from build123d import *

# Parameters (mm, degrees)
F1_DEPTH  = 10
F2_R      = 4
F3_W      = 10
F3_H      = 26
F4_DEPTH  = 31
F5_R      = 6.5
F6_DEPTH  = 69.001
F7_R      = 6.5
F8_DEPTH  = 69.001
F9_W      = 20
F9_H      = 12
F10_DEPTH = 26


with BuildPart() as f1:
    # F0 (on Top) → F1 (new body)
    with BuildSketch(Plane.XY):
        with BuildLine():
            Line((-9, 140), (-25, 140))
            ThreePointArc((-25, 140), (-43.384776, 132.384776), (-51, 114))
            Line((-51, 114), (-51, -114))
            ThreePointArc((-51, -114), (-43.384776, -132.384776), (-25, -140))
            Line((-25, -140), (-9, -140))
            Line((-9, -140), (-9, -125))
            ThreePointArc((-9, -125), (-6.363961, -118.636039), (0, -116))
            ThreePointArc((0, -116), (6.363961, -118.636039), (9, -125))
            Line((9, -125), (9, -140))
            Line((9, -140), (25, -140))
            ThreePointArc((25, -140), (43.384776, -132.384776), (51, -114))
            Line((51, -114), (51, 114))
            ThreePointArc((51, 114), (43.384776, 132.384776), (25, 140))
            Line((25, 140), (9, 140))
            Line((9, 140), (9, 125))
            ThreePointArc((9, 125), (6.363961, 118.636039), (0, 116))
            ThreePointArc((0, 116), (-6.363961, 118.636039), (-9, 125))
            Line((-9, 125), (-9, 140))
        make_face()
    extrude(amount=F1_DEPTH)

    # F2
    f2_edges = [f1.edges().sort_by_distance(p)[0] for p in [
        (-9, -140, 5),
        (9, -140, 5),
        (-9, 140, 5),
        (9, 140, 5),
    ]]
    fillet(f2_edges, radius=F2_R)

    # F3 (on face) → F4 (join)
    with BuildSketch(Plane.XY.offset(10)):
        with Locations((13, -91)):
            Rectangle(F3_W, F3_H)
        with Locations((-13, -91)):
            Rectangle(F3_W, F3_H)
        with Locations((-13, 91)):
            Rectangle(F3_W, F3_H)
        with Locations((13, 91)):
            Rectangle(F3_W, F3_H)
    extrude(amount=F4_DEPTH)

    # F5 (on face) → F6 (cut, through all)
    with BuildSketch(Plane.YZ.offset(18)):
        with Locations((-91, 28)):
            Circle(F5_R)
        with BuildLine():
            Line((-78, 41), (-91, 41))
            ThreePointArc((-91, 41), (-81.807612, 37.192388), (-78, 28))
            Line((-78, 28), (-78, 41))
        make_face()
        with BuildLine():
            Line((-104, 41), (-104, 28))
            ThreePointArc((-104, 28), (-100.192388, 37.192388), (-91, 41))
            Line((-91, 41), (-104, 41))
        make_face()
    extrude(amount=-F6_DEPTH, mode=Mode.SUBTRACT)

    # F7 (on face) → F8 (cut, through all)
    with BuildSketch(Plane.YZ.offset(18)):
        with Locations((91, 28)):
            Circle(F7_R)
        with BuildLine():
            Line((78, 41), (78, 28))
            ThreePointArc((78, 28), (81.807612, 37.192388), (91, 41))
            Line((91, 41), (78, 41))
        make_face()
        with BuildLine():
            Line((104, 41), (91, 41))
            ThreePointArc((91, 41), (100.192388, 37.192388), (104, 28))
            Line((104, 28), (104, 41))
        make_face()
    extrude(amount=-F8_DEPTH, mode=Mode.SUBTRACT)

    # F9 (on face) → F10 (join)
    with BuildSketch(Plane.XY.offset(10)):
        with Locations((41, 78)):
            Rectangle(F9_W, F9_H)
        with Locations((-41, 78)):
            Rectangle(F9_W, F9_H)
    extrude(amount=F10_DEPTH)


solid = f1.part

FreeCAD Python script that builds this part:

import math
import FreeCAD as App
import Part
import Sketcher
from FreeCAD import Vector
Q = App.Units.Quantity


def edges_at(feature, points):
    """Names of the edges that pass closest to the given points."""
    edges = feature.Shape.Edges
    near = lambda p: min(range(len(edges)), key=lambda i: edges[i].distToShape(Part.Vertex(*p))[0])
    return sorted({f"Edge{near(p) + 1}" for p in points})

doc = App.newDocument("Part")
body = doc.addObject("PartDesign::Body", "Body")

# Sketch on XY plane
sketch1 = body.newObject("Sketcher::SketchObject", "Sketch")
sketch1.AttachmentSupport = (doc.getObject("XY_Plane"), [""])
sketch1.MapMode = "FlatFace"
sketch1.addGeometry([
    Part.LineSegment(Vector(-9, 140, 0), Vector(-25, 140, 0)),  # 0
    Part.ArcOfCircle(Part.Circle(Vector(-25, 114, 0), Vector(0, 0, 1), 26), math.radians(90), math.radians(180)),  # 1
    Part.LineSegment(Vector(-51, 114, 0), Vector(-51, -114, 0)),  # 2
    Part.ArcOfCircle(Part.Circle(Vector(-25, -114, 0), Vector(0, 0, 1), 26), math.radians(-180), math.radians(-90)),  # 3
    Part.LineSegment(Vector(-25, -140, 0), Vector(-9, -140, 0)),  # 4
    Part.LineSegment(Vector(-9, -140, 0), Vector(-9, -125, 0)),  # 5
    Part.ArcOfCircle(Part.Circle(Vector(0, -125, 0), Vector(0, 0, 1), 9), math.radians(90), math.radians(180)),  # 6
    Part.ArcOfCircle(Part.Circle(Vector(0, -125, 0), Vector(0, 0, 1), 9), math.radians(0), math.radians(90)),  # 7
    Part.LineSegment(Vector(9, -125, 0), Vector(9, -140, 0)),  # 8
    Part.LineSegment(Vector(9, -140, 0), Vector(25, -140, 0)),  # 9
    Part.ArcOfCircle(Part.Circle(Vector(25, -114, 0), Vector(0, 0, 1), 26), math.radians(-90), math.radians(0)),  # 10
    Part.LineSegment(Vector(51, -114, 0), Vector(51, 114, 0)),  # 11
    Part.ArcOfCircle(Part.Circle(Vector(25, 114, 0), Vector(0, 0, 1), 26), math.radians(0), math.radians(90)),  # 12
    Part.LineSegment(Vector(25, 140, 0), Vector(9, 140, 0)),  # 13
    Part.LineSegment(Vector(9, 140, 0), Vector(9, 125, 0)),  # 14
    Part.ArcOfCircle(Part.Circle(Vector(0, 125, 0), Vector(0, 0, 1), 9), math.radians(-90), math.radians(0)),  # 15
    Part.ArcOfCircle(Part.Circle(Vector(0, 125, 0), Vector(0, 0, 1), 9), math.radians(-180), math.radians(-90)),  # 16
    Part.LineSegment(Vector(-9, 125, 0), Vector(-9, 140, 0)),  # 17
], False)
sketch1.addConstraint([
    Sketcher.Constraint("Tangent", 0, 2, 1, 1),
    Sketcher.Constraint("Tangent", 1, 2, 2, 1),
    Sketcher.Constraint("Tangent", 2, 2, 3, 1),
    Sketcher.Constraint("Tangent", 3, 2, 4, 1),
    Sketcher.Constraint("Coincident", 4, 2, 5, 1),
    Sketcher.Constraint("Tangent", 5, 2, 6, 2),
    Sketcher.Constraint("Tangent", 6, 1, 7, 2),
    Sketcher.Constraint("Tangent", 7, 1, 8, 1),
    Sketcher.Constraint("Coincident", 8, 2, 9, 1),
    Sketcher.Constraint("Tangent", 9, 2, 10, 1),
    Sketcher.Constraint("Tangent", 10, 2, 11, 1),
    Sketcher.Constraint("Tangent", 11, 2, 12, 1),
    Sketcher.Constraint("Tangent", 12, 2, 13, 1),
    Sketcher.Constraint("Coincident", 13, 2, 14, 1),
    Sketcher.Constraint("Tangent", 14, 2, 15, 2),
    Sketcher.Constraint("Tangent", 15, 1, 16, 2),
    Sketcher.Constraint("Tangent", 16, 1, 17, 1),
    Sketcher.Constraint("Coincident", 17, 2, 0, 1),
    Sketcher.Constraint("Horizontal", 0),
    Sketcher.Constraint("Vertical", 2),
    Sketcher.Constraint("Horizontal", 4),
    Sketcher.Constraint("Vertical", 5),
    Sketcher.Constraint("Vertical", 8),
    Sketcher.Constraint("Horizontal", 9),
    Sketcher.Constraint("Vertical", 11),
    Sketcher.Constraint("Horizontal", 13),
    Sketcher.Constraint("Vertical", 14),
    Sketcher.Constraint("Vertical", 17),
    Sketcher.Constraint("Equal", 1, 3),
    Sketcher.Constraint("Equal", 6, 7),
    Sketcher.Constraint("Equal", 3, 10),
    Sketcher.Constraint("Equal", 10, 12),
    Sketcher.Constraint("Equal", 7, 15),
    Sketcher.Constraint("Equal", 15, 16),
    Sketcher.Constraint("Symmetric", 1, 3, 10, 3, -1, 1),
    Sketcher.Constraint("Symmetric", 6, 3, 15, 3, -1, 1),
    Sketcher.Constraint("Symmetric", 4, 2, 8, 2, -2),
    Sketcher.Constraint("PointOnObject", 6, 1, -2),
    Sketcher.Constraint("PointOnObject", 15, 1, -2),
    Sketcher.Constraint("Horizontal", 1, 3, 12, 3),
    Sketcher.Constraint("Radius", 1, Q("26.000001 mm")),
    Sketcher.Constraint("Radius", 6, Q("9 mm")),
    Sketcher.Constraint("DistanceX", 0, 2, 0, 1, Q("16 mm")),
    Sketcher.Constraint("DistanceY", 2, 2, 2, 1, Q("228 mm")),
    Sketcher.Constraint("DistanceY", 5, 1, 5, 2, Q("15 mm")),
])
pad1 = body.newObject("PartDesign::Pad", "Pad")
pad1.Profile = sketch1
pad1.Length = 10
doc.recompute()

fillet = body.newObject("PartDesign::Fillet", "Fillet")
fillet.Base = (pad1, edges_at(pad1, [
    (-9, -140, 5),
    (9, -140, 5),
    (-9, 140, 5),
    (9, 140, 5),
]))
fillet.Radius = 4

# Sketch on XY plane
sketch2 = body.newObject("Sketcher::SketchObject", "Sketch001")
sketch2.AttachmentSupport = (doc.getObject("XY_Plane"), [""])
sketch2.MapMode = "FlatFace"
sketch2.AttachmentOffset = App.Placement(Vector(0, 0, 10), App.Rotation())
sketch2.addGeometry([
    Part.LineSegment(Vector(8, -78, 0), Vector(8, -104, 0)),  # 0
    Part.LineSegment(Vector(8, -104, 0), Vector(18, -104, 0)),  # 1
    Part.LineSegment(Vector(18, -104, 0), Vector(18, -78, 0)),  # 2
    Part.LineSegment(Vector(18, -78, 0), Vector(8, -78, 0)),  # 3
    Part.LineSegment(Vector(-18, -78, 0), Vector(-18, -104, 0)),  # 4
    Part.LineSegment(Vector(-18, -104, 0), Vector(-8, -104, 0)),  # 5
    Part.LineSegment(Vector(-8, -104, 0), Vector(-8, -78, 0)),  # 6
    Part.LineSegment(Vector(-8, -78, 0), Vector(-18, -78, 0)),  # 7
    Part.LineSegment(Vector(-18, 104, 0), Vector(-18, 78, 0)),  # 8
    Part.LineSegment(Vector(-18, 78, 0), Vector(-8, 78, 0)),  # 9
    Part.LineSegment(Vector(-8, 78, 0), Vector(-8, 104, 0)),  # 10
    Part.LineSegment(Vector(-8, 104, 0), Vector(-18, 104, 0)),  # 11
    Part.LineSegment(Vector(8, 104, 0), Vector(8, 78, 0)),  # 12
    Part.LineSegment(Vector(8, 78, 0), Vector(18, 78, 0)),  # 13
    Part.LineSegment(Vector(18, 78, 0), Vector(18, 104, 0)),  # 14
    Part.LineSegment(Vector(18, 104, 0), Vector(8, 104, 0)),  # 15
], False)
sketch2.addConstraint([
    Sketcher.Constraint("Coincident", 0, 2, 1, 1),
    Sketcher.Constraint("Coincident", 1, 2, 2, 1),
    Sketcher.Constraint("Coincident", 2, 2, 3, 1),
    Sketcher.Constraint("Coincident", 3, 2, 0, 1),
    Sketcher.Constraint("Coincident", 4, 2, 5, 1),
    Sketcher.Constraint("Coincident", 5, 2, 6, 1),
    Sketcher.Constraint("Coincident", 6, 2, 7, 1),
    Sketcher.Constraint("Coincident", 7, 2, 4, 1),
    Sketcher.Constraint("Coincident", 8, 2, 9, 1),
    Sketcher.Constraint("Coincident", 9, 2, 10, 1),
    Sketcher.Constraint("Coincident", 10, 2, 11, 1),
    Sketcher.Constraint("Coincident", 11, 2, 8, 1),
    Sketcher.Constraint("Coincident", 12, 2, 13, 1),
    Sketcher.Constraint("Coincident", 13, 2, 14, 1),
    Sketcher.Constraint("Coincident", 14, 2, 15, 1),
    Sketcher.Constraint("Coincident", 15, 2, 12, 1),
    Sketcher.Constraint("Vertical", 0),
    Sketcher.Constraint("Horizontal", 1),
    Sketcher.Constraint("Vertical", 2),
    Sketcher.Constraint("Horizontal", 3),
    Sketcher.Constraint("Vertical", 4),
    Sketcher.Constraint("Horizontal", 5),
    Sketcher.Constraint("Vertical", 6),
    Sketcher.Constraint("Horizontal", 7),
    Sketcher.Constraint("Vertical", 8),
    Sketcher.Constraint("Horizontal", 9),
    Sketcher.Constraint("Vertical", 10),
    Sketcher.Constraint("Horizontal", 11),
    Sketcher.Constraint("Vertical", 12),
    Sketcher.Constraint("Horizontal", 13),
    Sketcher.Constraint("Vertical", 14),
    Sketcher.Constraint("Horizontal", 15),
    Sketcher.Constraint("Symmetric", 2, 2, 8, 2, -1, 1),
    Sketcher.Constraint("Symmetric", 0, 2, 10, 2, -1, 1),
    Sketcher.Constraint("Symmetric", 6, 2, 12, 2, -1, 1),
    Sketcher.Constraint("Symmetric", 4, 2, 14, 2, -1, 1),
    Sketcher.Constraint("Symmetric", 1, 2, 4, 2, -2),
    Sketcher.Constraint("Symmetric", 3, 2, 6, 2, -2),
    Sketcher.Constraint("DistanceX", 1, 1, 1, 2, Q("10 mm")),
    Sketcher.Constraint("DistanceY", 0, 2, 0, 1, Q("26 mm")),
    Sketcher.Constraint("DistanceX", -1, 1, 0, 2, Q("8 mm")),
    Sketcher.Constraint("DistanceY", 0, 2, -1, 1, Q("104 mm")),
])
pad2 = body.newObject("PartDesign::Pad", "Pad001")
pad2.Profile = sketch2
pad2.Length = 31

# Sketch on YZ plane
sketch3 = body.newObject("Sketcher::SketchObject", "Sketch002")
sketch3.AttachmentSupport = (doc.getObject("YZ_Plane"), [""])
sketch3.MapMode = "FlatFace"
sketch3.AttachmentOffset = App.Placement(Vector(0, 0, 18), App.Rotation())
sketch3.addGeometry([
    Part.Circle(Vector(-91, 28, 0), Vector(0, 0, 1), 6),  # 0
    Part.LineSegment(Vector(-78, 41, 0), Vector(-91, 41, 0)),  # 1
    Part.ArcOfCircle(Part.Circle(Vector(-91, 28, 0), Vector(0, 0, 1), 13), math.radians(0), math.radians(90)),  # 2
    Part.LineSegment(Vector(-78, 28, 0), Vector(-78, 41, 0)),  # 3
    Part.LineSegment(Vector(-104, 41, 0), Vector(-104, 28, 0)),  # 4
    Part.ArcOfCircle(Part.Circle(Vector(-91, 28, 0), Vector(0, 0, 1), 13), math.radians(90), math.radians(180)),  # 5
    Part.LineSegment(Vector(-91, 41, 0), Vector(-104, 41, 0)),  # 6
], False)
sketch3.addConstraint([
    Sketcher.Constraint("Tangent", 1, 2, 2, 2),
    Sketcher.Constraint("Tangent", 2, 1, 3, 1),
    Sketcher.Constraint("Coincident", 3, 2, 1, 1),
    Sketcher.Constraint("Tangent", 4, 2, 5, 2),
    Sketcher.Constraint("Tangent", 5, 1, 6, 1),
    Sketcher.Constraint("Coincident", 6, 2, 4, 1),
    Sketcher.Constraint("Horizontal", 1),
    Sketcher.Constraint("Vertical", 3),
    Sketcher.Constraint("Vertical", 4),
    Sketcher.Constraint("Horizontal", 6),
    Sketcher.Constraint("Coincident", 2, 3, 0, 3),
    Sketcher.Constraint("Coincident", 5, 3, 0, 3),
    Sketcher.Constraint("Equal", 2, 5),
    Sketcher.Constraint("Diameter", 0, Q("13 mm")),
    Sketcher.Constraint("Radius", 2, Q("13.000001 mm")),
    Sketcher.Constraint("DistanceX", 0, 3, -1, 1, Q("91 mm")),
    Sketcher.Constraint("DistanceY", -1, 1, 0, 3, Q("28 mm")),
])
pocket1 = body.newObject("PartDesign::Pocket", "Pocket")
pocket1.Profile = sketch3
pocket1.Type = "ThroughAll"

# Sketch on YZ plane
sketch4 = body.newObject("Sketcher::SketchObject", "Sketch003")
sketch4.AttachmentSupport = (doc.getObject("YZ_Plane"), [""])
sketch4.MapMode = "FlatFace"
sketch4.AttachmentOffset = App.Placement(Vector(0, 0, 18), App.Rotation())
sketch4.addGeometry([
    Part.Circle(Vector(91, 28, 0), Vector(0, 0, 1), 6),  # 0
    Part.LineSegment(Vector(78, 41, 0), Vector(78, 28, 0)),  # 1
    Part.ArcOfCircle(Part.Circle(Vector(91, 28, 0), Vector(0, 0, 1), 13), math.radians(90), math.radians(180)),  # 2
    Part.LineSegment(Vector(91, 41, 0), Vector(78, 41, 0)),  # 3
    Part.LineSegment(Vector(104, 41, 0), Vector(91, 41, 0)),  # 4
    Part.ArcOfCircle(Part.Circle(Vector(91, 28, 0), Vector(0, 0, 1), 13), math.radians(0), math.radians(90)),  # 5
    Part.LineSegment(Vector(104, 28, 0), Vector(104, 41, 0)),  # 6
], False)
sketch4.addConstraint([
    Sketcher.Constraint("Tangent", 1, 2, 2, 2),
    Sketcher.Constraint("Tangent", 2, 1, 3, 1),
    Sketcher.Constraint("Coincident", 3, 2, 1, 1),
    Sketcher.Constraint("Tangent", 4, 2, 5, 2),
    Sketcher.Constraint("Tangent", 5, 1, 6, 1),
    Sketcher.Constraint("Coincident", 6, 2, 4, 1),
    Sketcher.Constraint("Vertical", 1),
    Sketcher.Constraint("Horizontal", 3),
    Sketcher.Constraint("Horizontal", 4),
    Sketcher.Constraint("Vertical", 6),
    Sketcher.Constraint("Coincident", 2, 3, 0, 3),
    Sketcher.Constraint("Coincident", 5, 3, 0, 3),
    Sketcher.Constraint("Equal", 2, 5),
    Sketcher.Constraint("Diameter", 0, Q("13 mm")),
    Sketcher.Constraint("Radius", 2, Q("13.000001 mm")),
    Sketcher.Constraint("DistanceX", -1, 1, 0, 3, Q("91 mm")),
    Sketcher.Constraint("DistanceY", -1, 1, 0, 3, Q("28 mm")),
])
pocket2 = body.newObject("PartDesign::Pocket", "Pocket001")
pocket2.Profile = sketch4
pocket2.Type = "ThroughAll"

# Sketch on XY plane
sketch5 = body.newObject("Sketcher::SketchObject", "Sketch004")
sketch5.AttachmentSupport = (doc.getObject("XY_Plane"), [""])
sketch5.MapMode = "FlatFace"
sketch5.AttachmentOffset = App.Placement(Vector(0, 0, 10), App.Rotation())
sketch5.addGeometry([
    Part.LineSegment(Vector(31, 84, 0), Vector(31, 72, 0)),  # 0
    Part.LineSegment(Vector(31, 72, 0), Vector(51, 72, 0)),  # 1
    Part.LineSegment(Vector(51, 72, 0), Vector(51, 84, 0)),  # 2
    Part.LineSegment(Vector(51, 84, 0), Vector(31, 84, 0)),  # 3
    Part.LineSegment(Vector(-51, 84, 0), Vector(-51, 72, 0)),  # 4
    Part.LineSegment(Vector(-51, 72, 0), Vector(-31, 72, 0)),  # 5
    Part.LineSegment(Vector(-31, 72, 0), Vector(-31, 84, 0)),  # 6
    Part.LineSegment(Vector(-31, 84, 0), Vector(-51, 84, 0)),  # 7
], False)
sketch5.addConstraint([
    Sketcher.Constraint("Coincident", 0, 2, 1, 1),
    Sketcher.Constraint("Coincident", 1, 2, 2, 1),
    Sketcher.Constraint("Coincident", 2, 2, 3, 1),
    Sketcher.Constraint("Coincident", 3, 2, 0, 1),
    Sketcher.Constraint("Coincident", 4, 2, 5, 1),
    Sketcher.Constraint("Coincident", 5, 2, 6, 1),
    Sketcher.Constraint("Coincident", 6, 2, 7, 1),
    Sketcher.Constraint("Coincident", 7, 2, 4, 1),
    Sketcher.Constraint("Vertical", 0),
    Sketcher.Constraint("Horizontal", 1),
    Sketcher.Constraint("Vertical", 2),
    Sketcher.Constraint("Horizontal", 3),
    Sketcher.Constraint("Vertical", 4),
    Sketcher.Constraint("Horizontal", 5),
    Sketcher.Constraint("Vertical", 6),
    Sketcher.Constraint("Horizontal", 7),
    Sketcher.Constraint("Symmetric", 1, 2, 4, 2, -2),
    Sketcher.Constraint("Symmetric", 3, 2, 6, 2, -2),
    Sketcher.Constraint("DistanceX", 1, 1, 1, 2, Q("20 mm")),
    Sketcher.Constraint("DistanceY", 0, 2, 0, 1, Q("12 mm")),
    Sketcher.Constraint("DistanceX", -1, 1, 0, 2, Q("31 mm")),
    Sketcher.Constraint("DistanceY", -1, 1, 0, 2, Q("72 mm")),
])
pad3 = body.newObject("PartDesign::Pad", "Pad002")
pad3.Profile = sketch5
pad3.Length = 26

doc.recompute()
